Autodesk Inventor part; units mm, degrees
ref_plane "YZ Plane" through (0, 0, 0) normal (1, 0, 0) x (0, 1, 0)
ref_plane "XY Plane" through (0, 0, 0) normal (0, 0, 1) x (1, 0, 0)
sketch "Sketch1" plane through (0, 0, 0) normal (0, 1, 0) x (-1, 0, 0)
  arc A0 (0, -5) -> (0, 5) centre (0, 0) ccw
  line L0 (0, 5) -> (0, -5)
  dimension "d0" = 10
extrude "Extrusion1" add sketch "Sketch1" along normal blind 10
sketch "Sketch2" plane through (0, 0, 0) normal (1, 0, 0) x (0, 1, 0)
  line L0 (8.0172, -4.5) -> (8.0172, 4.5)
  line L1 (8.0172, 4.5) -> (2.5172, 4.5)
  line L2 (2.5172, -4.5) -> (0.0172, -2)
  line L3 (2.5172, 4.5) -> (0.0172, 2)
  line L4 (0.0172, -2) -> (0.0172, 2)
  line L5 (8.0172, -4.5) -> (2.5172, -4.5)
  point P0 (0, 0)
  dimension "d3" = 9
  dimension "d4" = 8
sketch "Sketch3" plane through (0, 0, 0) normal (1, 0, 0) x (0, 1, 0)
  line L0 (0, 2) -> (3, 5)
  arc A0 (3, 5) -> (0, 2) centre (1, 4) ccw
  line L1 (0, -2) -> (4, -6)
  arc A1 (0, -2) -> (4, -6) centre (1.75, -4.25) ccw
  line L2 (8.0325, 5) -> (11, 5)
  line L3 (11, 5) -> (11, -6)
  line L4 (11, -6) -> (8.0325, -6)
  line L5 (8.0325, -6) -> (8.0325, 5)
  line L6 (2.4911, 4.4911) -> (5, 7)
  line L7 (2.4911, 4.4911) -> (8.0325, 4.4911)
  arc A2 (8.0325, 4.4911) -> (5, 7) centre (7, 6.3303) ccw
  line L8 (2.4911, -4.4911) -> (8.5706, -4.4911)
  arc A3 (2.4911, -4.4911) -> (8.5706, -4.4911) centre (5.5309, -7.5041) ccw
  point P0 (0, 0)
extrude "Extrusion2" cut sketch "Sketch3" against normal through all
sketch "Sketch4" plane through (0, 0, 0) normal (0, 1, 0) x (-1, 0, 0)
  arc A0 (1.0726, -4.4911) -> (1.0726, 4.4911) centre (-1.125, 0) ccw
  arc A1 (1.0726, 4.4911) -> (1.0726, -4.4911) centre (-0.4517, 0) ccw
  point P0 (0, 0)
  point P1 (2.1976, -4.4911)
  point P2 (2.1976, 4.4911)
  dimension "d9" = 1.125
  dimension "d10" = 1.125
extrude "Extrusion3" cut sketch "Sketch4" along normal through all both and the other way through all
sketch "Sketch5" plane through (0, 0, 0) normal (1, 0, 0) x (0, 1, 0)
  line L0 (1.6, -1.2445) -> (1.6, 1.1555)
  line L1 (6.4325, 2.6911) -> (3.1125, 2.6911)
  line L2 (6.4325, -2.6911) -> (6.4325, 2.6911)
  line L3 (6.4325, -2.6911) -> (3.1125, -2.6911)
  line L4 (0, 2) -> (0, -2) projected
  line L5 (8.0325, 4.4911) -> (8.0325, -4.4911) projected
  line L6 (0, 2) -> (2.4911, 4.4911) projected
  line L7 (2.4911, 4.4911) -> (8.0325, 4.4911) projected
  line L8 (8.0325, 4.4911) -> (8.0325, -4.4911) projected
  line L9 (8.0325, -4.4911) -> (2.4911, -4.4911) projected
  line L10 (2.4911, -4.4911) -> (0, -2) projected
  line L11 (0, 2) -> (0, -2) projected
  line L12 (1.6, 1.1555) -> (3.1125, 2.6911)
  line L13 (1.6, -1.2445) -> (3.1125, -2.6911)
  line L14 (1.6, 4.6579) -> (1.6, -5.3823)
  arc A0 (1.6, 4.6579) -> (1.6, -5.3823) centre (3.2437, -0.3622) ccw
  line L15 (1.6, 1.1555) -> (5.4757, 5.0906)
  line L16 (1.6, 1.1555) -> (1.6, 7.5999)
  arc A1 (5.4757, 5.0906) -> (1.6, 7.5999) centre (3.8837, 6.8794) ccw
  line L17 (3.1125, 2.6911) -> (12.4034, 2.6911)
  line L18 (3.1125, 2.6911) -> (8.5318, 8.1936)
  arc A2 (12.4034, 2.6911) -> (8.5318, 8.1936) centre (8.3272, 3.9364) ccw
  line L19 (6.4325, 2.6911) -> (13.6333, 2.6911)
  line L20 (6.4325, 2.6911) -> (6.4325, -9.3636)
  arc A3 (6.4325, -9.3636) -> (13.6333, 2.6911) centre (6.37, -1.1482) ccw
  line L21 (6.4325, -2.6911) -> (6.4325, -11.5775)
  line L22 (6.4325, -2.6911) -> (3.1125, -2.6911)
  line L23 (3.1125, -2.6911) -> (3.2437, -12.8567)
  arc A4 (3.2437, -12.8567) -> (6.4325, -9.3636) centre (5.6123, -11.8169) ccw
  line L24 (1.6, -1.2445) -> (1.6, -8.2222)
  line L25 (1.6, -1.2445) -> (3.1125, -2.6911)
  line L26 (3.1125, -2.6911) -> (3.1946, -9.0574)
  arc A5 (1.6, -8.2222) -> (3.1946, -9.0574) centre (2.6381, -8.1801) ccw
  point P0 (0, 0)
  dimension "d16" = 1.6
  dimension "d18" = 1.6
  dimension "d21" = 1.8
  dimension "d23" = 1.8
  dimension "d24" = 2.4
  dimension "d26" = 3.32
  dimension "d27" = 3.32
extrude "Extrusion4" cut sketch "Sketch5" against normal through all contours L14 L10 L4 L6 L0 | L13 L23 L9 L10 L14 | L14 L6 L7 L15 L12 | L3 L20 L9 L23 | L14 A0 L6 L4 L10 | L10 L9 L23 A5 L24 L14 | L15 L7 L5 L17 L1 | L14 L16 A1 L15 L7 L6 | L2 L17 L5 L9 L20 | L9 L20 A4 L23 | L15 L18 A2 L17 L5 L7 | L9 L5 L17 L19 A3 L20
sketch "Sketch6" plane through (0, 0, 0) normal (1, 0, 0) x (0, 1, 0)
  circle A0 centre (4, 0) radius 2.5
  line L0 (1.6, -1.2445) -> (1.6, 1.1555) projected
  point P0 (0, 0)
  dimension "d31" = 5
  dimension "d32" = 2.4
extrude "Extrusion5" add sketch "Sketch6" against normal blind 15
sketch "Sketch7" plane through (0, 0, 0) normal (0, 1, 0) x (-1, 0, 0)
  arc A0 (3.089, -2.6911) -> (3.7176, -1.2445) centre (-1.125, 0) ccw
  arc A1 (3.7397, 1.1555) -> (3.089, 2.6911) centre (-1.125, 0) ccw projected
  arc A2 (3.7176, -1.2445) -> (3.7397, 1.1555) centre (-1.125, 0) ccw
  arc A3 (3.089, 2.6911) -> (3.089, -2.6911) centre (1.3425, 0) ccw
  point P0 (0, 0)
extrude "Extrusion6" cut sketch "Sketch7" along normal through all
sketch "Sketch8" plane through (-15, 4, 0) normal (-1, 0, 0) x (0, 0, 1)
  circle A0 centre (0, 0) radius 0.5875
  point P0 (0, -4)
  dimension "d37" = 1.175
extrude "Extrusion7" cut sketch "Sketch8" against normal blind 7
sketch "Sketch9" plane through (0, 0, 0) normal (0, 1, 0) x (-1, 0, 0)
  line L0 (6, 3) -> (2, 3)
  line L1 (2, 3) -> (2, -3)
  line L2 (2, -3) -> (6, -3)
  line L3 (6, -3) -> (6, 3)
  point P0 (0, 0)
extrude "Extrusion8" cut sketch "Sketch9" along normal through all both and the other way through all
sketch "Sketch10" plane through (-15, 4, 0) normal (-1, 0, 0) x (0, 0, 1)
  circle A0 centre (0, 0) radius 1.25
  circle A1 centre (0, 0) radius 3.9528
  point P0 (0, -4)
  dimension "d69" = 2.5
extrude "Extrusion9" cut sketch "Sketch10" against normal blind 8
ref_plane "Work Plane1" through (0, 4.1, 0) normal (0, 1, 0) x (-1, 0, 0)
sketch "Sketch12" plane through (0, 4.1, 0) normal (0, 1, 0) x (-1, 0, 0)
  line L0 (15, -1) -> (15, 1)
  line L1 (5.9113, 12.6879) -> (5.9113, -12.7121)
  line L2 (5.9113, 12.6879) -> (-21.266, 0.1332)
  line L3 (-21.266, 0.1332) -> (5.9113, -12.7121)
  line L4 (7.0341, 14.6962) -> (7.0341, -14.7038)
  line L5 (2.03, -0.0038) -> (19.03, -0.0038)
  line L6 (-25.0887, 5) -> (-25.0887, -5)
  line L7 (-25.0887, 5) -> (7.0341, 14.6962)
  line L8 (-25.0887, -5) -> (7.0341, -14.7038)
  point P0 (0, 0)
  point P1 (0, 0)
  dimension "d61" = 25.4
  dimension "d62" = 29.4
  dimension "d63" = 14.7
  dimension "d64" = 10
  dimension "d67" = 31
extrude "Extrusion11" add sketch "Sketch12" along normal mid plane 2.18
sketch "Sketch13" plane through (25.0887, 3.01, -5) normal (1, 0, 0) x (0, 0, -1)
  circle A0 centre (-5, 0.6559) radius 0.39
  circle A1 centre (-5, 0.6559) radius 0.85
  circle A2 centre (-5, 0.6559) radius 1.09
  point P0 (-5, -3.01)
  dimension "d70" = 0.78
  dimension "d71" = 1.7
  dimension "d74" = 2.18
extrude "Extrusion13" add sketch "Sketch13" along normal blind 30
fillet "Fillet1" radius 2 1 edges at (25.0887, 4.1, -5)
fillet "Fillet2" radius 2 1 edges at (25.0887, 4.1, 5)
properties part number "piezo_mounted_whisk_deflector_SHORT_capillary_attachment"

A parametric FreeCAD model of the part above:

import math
import FreeCAD as App
import Part
import Sketcher
from FreeCAD import Vector
Q = App.Units.Quantity


def edges_at(feature, points):
    """Names of the edges that pass closest to the given points."""
    edges = feature.Shape.Edges
    near = lambda p: min(range(len(edges)), key=lambda i: edges[i].distToShape(Part.Vertex(*p))[0])
    return sorted({f"Edge{near(p) + 1}" for p in points})


def add_polygon(sketch, points):
    """Adds a closed chain of lines whose ends are joined by coincident constraints."""
    first, n = sketch.GeometryCount, len(points)
    for a, b in zip(points, points[1:] + points[:1]):
        sketch.addGeometry(Part.LineSegment(App.Vector(*a, 0), App.Vector(*b, 0)), False)
    for i in range(n):
        sketch.addConstraint(Sketcher.Constraint("Coincident", first + i, 2, first + (i + 1) % n, 1))

doc = App.newDocument("Part")
body = doc.addObject("PartDesign::Body", "Body")

# Sketch on XZ plane
sketch1 = body.newObject("Sketcher::SketchObject", "Sketch")
sketch1.AttachmentSupport = (doc.getObject("XZ_Plane"), [""])
sketch1.MapMode = "FlatFace"
sketch1.addGeometry(Part.LineSegment(Vector(0, 5, 0), Vector(0, -5, 0)), False)
sketch1.addGeometry(Part.ArcOfCircle(Part.Circle(Vector(0, 0, 0), Vector(0, 0, 1), 5), math.radians(90), math.radians(270)), False)
sketch1.addConstraint(Sketcher.Constraint("Coincident", 0, 1, 1, 1))
sketch1.addConstraint(Sketcher.Constraint("Coincident", 1, 2, 0, 2))
sketch1.addConstraint(Sketcher.Constraint("Vertical", 0))
sketch1.addConstraint(Sketcher.Constraint("Coincident", 1, 3, -1, 1))
sketch1.addConstraint(Sketcher.Constraint("PointOnObject", 0, 1, -2))
sketch1.addConstraint(Sketcher.Constraint("Radius", 1, Q("5 mm")))
pad1 = body.newObject("PartDesign::Pad", "Pad")
pad1.Profile = sketch1
pad1.Length = 10
pad1.Reversed = True

# Sketch on YZ plane
sketch2 = body.newObject("Sketcher::SketchObject", "Sketch001")
sketch2.AttachmentSupport = (doc.getObject("YZ_Plane"), [""])
sketch2.MapMode = "FlatFace"
sketch2.addGeometry(Part.ArcOfCircle(Part.Circle(Vector(1, 4, 0), Vector(0, 0, 1), 2.236068), math.radians(26.565051), math.radians(243.434949)), False)
sketch2.addGeometry(Part.LineSegment(Vector(0, 2, 0), Vector(2.4911, 4.4911, 0)), False)
sketch2.addGeometry(Part.LineSegment(Vector(2.4911, 4.4911, 0), Vector(8.0325, 4.4911, 0)), False)
sketch2.addGeometry(Part.LineSegment(Vector(8.0325, 4.4911, 0), Vector(8.0325, -4.4911, 0)), False)
sketch2.addGeometry(Part.LineSegment(Vector(8.0325, -4.4911, 0), Vector(2.4911, -4.4911, 0)), False)
sketch2.addGeometry(Part.LineSegment(Vector(2.4911, -4.4911, 0), Vector(0, -2, 0)), False)
sketch2.addGeometry(Part.ArcOfCircle(Part.Circle(Vector(1.75, -4.25, 0), Vector(0, 0, 1), 2.850439), math.radians(127.874984), math.radians(260.385326)), False)
sketch2.addGeometry(Part.ArcOfCircle(Part.Circle(Vector(5.5309, -7.5041, 0), Vector(0, 0, 1), 4.280018), math.radians(174.04961), math.radians(380.5748)), False)
sketch2.addGeometry(Part.LineSegment(Vector(9.537843, -6, 0), Vector(11, -6, 0)), False)
sketch2.addGeometry(Part.LineSegment(Vector(11, -6, 0), Vector(11, 5, 0)), False)
sketch2.addGeometry(Part.LineSegment(Vector(11, 5, 0), Vector(8.636781, 5, 0)), False)
sketch2.addGeometry(Part.ArcOfCircle(Part.Circle(Vector(7, 6.3303, 0), Vector(0, 0, 1), 2.109197), math.radians(-39.10262), math.radians(161.486878)), False)
sketch2.addGeometry(Part.LineSegment(Vector(5, 7, 0), Vector(3, 5, 0)), False)
sketch2.addConstraint(Sketcher.Constraint("Coincident", 0, 2, 1, 1))
sketch2.addConstraint(Sketcher.Constraint("Coincident", 1, 2, 2, 1))
sketch2.addConstraint(Sketcher.Constraint("Coincident", 2, 2, 3, 1))
sketch2.addConstraint(Sketcher.Constraint("Coincident", 3, 2, 4, 1))
sketch2.addConstraint(Sketcher.Constraint("Coincident", 4, 2, 5, 1))
sketch2.addConstraint(Sketcher.Constraint("Coincident", 5, 2, 6, 1))
sketch2.addConstraint(Sketcher.Constraint("Coincident", 6, 2, 7, 1))
sketch2.addConstraint(Sketcher.Constraint("Coincident", 7, 2, 8, 1))
sketch2.addConstraint(Sketcher.Constraint("Coincident", 8, 2, 9, 1))
sketch2.addConstraint(Sketcher.Constraint("Coincident", 9, 2, 10, 1))
sketch2.addConstraint(Sketcher.Constraint("Coincident", 10, 2, 11, 1))
sketch2.addConstraint(Sketcher.Constraint("Coincident", 11, 2, 12, 1))
sketch2.addConstraint(Sketcher.Constraint("Coincident", 12, 2, 0, 1))
sketch2.addConstraint(Sketcher.Constraint("Horizontal", 2))
sketch2.addConstraint(Sketcher.Constraint("Vertical", 3))
sketch2.addConstraint(Sketcher.Constraint("Horizontal", 4))
sketch2.addConstraint(Sketcher.Constraint("Horizontal", 8))
sketch2.addConstraint(Sketcher.Constraint("Vertical", 9))
sketch2.addConstraint(Sketcher.Constraint("Horizontal", 10))
sketch2.addConstraint(Sketcher.Constraint("Symmetric", 0, 2, 5, 2, -1, 1))
sketch2.addConstraint(Sketcher.Constraint("Symmetric", 1, 2, 4, 2, -1))
sketch2.addConstraint(Sketcher.Constraint("PointOnObject", 0, 2, -2))
sketch2.addConstraint(Sketcher.Constraint("Perpendicular", 1, 5))
sketch2.addConstraint(Sketcher.Constraint("Perpendicular", 5, 12))
sketch2.addConstraint(Sketcher.Constraint("Horizontal", 10, 2, 12, 2))
sketch2.addConstraint(Sketcher.Constraint("DistanceY", 9, 1, 9, 2, Q("11 mm")))
sketch2.addConstraint(Sketcher.Constraint("Radius", 7, Q("4.28 mm")))
sketch2.addConstraint(Sketcher.Constraint("DistanceX", -1, 1, 0, 3, Q("1 mm")))
sketch2.addConstraint(Sketcher.Constraint("DistanceY", -1, 1, 0, 3, Q("4 mm")))
sketch2.addConstraint(Sketcher.Constraint("DistanceX", -1, 1, 11, 3, Q("7 mm")))
sketch2.addConstraint(Sketcher.Constraint("DistanceY", -1, 1, 0, 2, Q("2 mm")))
sketch2.addConstraint(Sketcher.Constraint("DistanceY", 7, 2, -1, 1, Q("6 mm")))
sketch2.addConstraint(Sketcher.Constraint("DistanceX", -1, 1, 8, 2, Q("11 mm")))
sketch2.addConstraint(Sketcher.Constraint("DistanceX", -1, 1, 11, 2, Q("5 mm")))
sketch2.addConstraint(Sketcher.Constraint("Radius", 6, Q("2.8504 mm")))
sketch2.addConstraint(Sketcher.Constraint("Radius", 11, Q("2.1092 mm")))
sketch2.addConstraint(Sketcher.Constraint("DistanceX", -1, 1, 6, 3, Q("1.75 mm")))
sketch2.addConstraint(Sketcher.Constraint("Distance", 1, Q("3.523 mm")))
sketch2.addConstraint(Sketcher.Constraint("DistanceX", 2, 1, 2, 2, Q("5.5414 mm")))
sketch2.addConstraint(Sketcher.Constraint("DistanceX", 8, 1, 8, 2, Q("1.4622 mm")))
sketch2.addConstraint(Sketcher.Constraint("DistanceX", -1, 1, 7, 3, Q("5.531 mm")))
pocket1 = body.newObject("PartDesign::Pocket", "Pocket")
pocket1.Profile = sketch2
pocket1.Type = "ThroughAll"

# Sketch on XZ plane
sketch3 = body.newObject("Sketcher::SketchObject", "Sketch002")
sketch3.AttachmentSupport = (doc.getObject("XZ_Plane"), [""])
sketch3.MapMode = "FlatFace"
sketch3.addGeometry(Part.ArcOfCircle(Part.Circle(Vector(0.4517, 0, 0), Vector(0, 0, 1), 4.742728), math.radians(-108.747449), math.radians(108.747449)), False)
sketch3.addGeometry(Part.ArcOfCircle(Part.Circle(Vector(1.125, 0, 0), Vector(0, 0, 1), 4.999942), math.radians(116.073582), math.radians(243.926418)), False)
sketch3.addConstraint(Sketcher.Constraint("Coincident", 0, 1, 1, 2))
sketch3.addConstraint(Sketcher.Constraint("Coincident", 1, 1, 0, 2))
sketch3.addConstraint(Sketcher.Constraint("Symmetric", 0, 1, 1, 1, -1))
sketch3.addConstraint(Sketcher.Constraint("Radius", 1, Q("5 mm")))
sketch3.addConstraint(Sketcher.Constraint("DistanceX", -1, 1, 1, 3, Q("1.125 mm")))
sketch3.addConstraint(Sketcher.Constraint("Radius", 0, Q("4.7427 mm")))
sketch3.addConstraint(Sketcher.Constraint("DistanceY", 0, 1, -1, 1, Q("4.491 mm")))
pocket2 = body.newObject("PartDesign::Pocket", "Pocket001")
pocket2.Profile = sketch3
pocket2.Type = "ThroughAll"

# Sketch on YZ plane
sketch4 = body.newObject("Sketcher::SketchObject", "Sketch003")
sketch4.AttachmentSupport = (doc.getObject("YZ_Plane"), [""])
sketch4.MapMode = "FlatFace"
sketch4.addGeometry(Part.ArcOfCircle(Part.Circle(Vector(3.2437, -0.3622, 0), Vector(0, 0, 1), 5.282344), math.radians(108.129676), math.radians(251.870324)), False)  # 0
sketch4.addGeometry(Part.LineSegment(Vector(1.6, -5.3823, 0), Vector(1.6, -8.2222, 0)), False)  # 1
sketch4.addGeometry(Part.ArcOfCircle(Part.Circle(Vector(2.6381, -8.1801, 0), Vector(0, 0, 1), 1.038953), math.radians(-177.67765), math.radians(-57.611711)), False)  # 2
sketch4.addGeometry(Part.LineSegment(Vector(3.194665, -9.057399, 0), Vector(3.2437, -12.8567, 0)), False)  # 3
sketch4.addGeometry(Part.ArcOfCircle(Part.Circle(Vector(5.6123, -11.8169, 0), Vector(0, 0, 1), 2.586784), math.radians(-156.298838), math.radians(71.51392)), False)  # 4
sketch4.addGeometry(Part.ArcOfCircle(Part.Circle(Vector(6.37, -1.1482, 0), Vector(0, 0, 1), 8.215638), math.radians(-89.564121), math.radians(27.860435)), False)  # 5
sketch4.addGeometry(Part.LineSegment(Vector(13.6333, 2.6911, 0), Vector(12.4034, 2.6911, 0)), False)  # 6
sketch4.addGeometry(Part.ArcOfCircle(Part.Circle(Vector(8.3272, 3.9364, 0), Vector(0, 0, 1), 4.26218), math.radians(-16.988181), math.radians(87.248496)), False)  # 7
sketch4.addGeometry(Part.LineSegment(Vector(8.5318, 8.1936, 0), Vector(5.475709, 5.090591, 0)), False)  # 8
sketch4.addGeometry(Part.ArcOfCircle(Part.Circle(Vector(3.8837, 6.8794, 0), Vector(0, 0, 1), 2.394633), math.radians(-48.331489), math.radians(162.489682)), False)  # 9
sketch4.addGeometry(Part.LineSegment(Vector(1.6, 7.5999, 0), Vector(1.6, 4.6579, 0)), False)  # 10
add_polygon(sketch4, [(1.6, -1.2445), (1.6, 1.1555), (3.1125, 2.6911), (6.4325, 2.6911), (6.4325, -2.6911), (3.1125, -2.6911)])  # lines 11-16
sketch4.addConstraint(Sketcher.Constraint("Coincident", 0, 2, 1, 1))
sketch4.addConstraint(Sketcher.Constraint("Coincident", 1, 2, 2, 1))
sketch4.addConstraint(Sketcher.Constraint("Coincident", 2, 2, 3, 1))
sketch4.addConstraint(Sketcher.Constraint("Coincident", 3, 2, 4, 1))
sketch4.addConstraint(Sketcher.Constraint("Coincident", 4, 2, 5, 1))
sketch4.addConstraint(Sketcher.Constraint("Coincident", 5, 2, 6, 1))
sketch4.addConstraint(Sketcher.Constraint("Coincident", 6, 2, 7, 1))
sketch4.addConstraint(Sketcher.Constraint("Coincident", 7, 2, 8, 1))
sketch4.addConstraint(Sketcher.Constraint("Coincident", 8, 2, 9, 1))
sketch4.addConstraint(Sketcher.Constraint("Coincident", 9, 2, 10, 1))
sketch4.addConstraint(Sketcher.Constraint("Coincident", 10, 2, 0, 1))
sketch4.addConstraint(Sketcher.Constraint("Vertical", 1))
sketch4.addConstraint(Sketcher.Constraint("Horizontal", 6))
sketch4.addConstraint(Sketcher.Constraint("Vertical", 10))
sketch4.addConstraint(Sketcher.Constraint("Vertical", 11))
sketch4.addConstraint(Sketcher.Constraint("Horizontal", 13))
sketch4.addConstraint(Sketcher.Constraint("Vertical", 14))
sketch4.addConstraint(Sketcher.Constraint("Horizontal", 15))
sketch4.addConstraint(Sketcher.Constraint("Symmetric", 12, 2, 15, 2, -1))
sketch4.addConstraint(Sketcher.Constraint("Parallel", 8, 12))
sketch4.addConstraint(Sketcher.Constraint("Horizontal", 6, 2, 12, 2))
sketch4.addConstraint(Sketcher.Constraint("Vertical", 0, 3, 3, 2))
sketch4.addConstraint(Sketcher.Constraint("Vertical", 1, 2, 9, 2))
sketch4.addConstraint(Sketcher.Constraint("Vertical", 10, 2, 11, 2))
sketch4.addConstraint(Sketcher.Constraint("Vertical", 4, 2, 13, 2))
sketch4.addConstraint(Sketcher.Constraint("DistanceY", 11, 1, 11, 2, Q("2.4 mm")))
sketch4.addConstraint(Sketcher.Constraint("DistanceX", 13, 1, 13, 2, Q("3.32 mm")))
sketch4.addConstraint(Sketcher.Constraint("DistanceX", -1, 1, 0, 2, Q("1.6 mm")))
sketch4.addConstraint(Sketcher.Constraint("Radius", 2, Q("1.039 mm")))
sketch4.addConstraint(Sketcher.Constraint("DistanceX", 6, 2, 6, 1, Q("1.23 mm")))
sketch4.addConstraint(Sketcher.Constraint("DistanceY", 1, 2, 1, 1, Q("2.84 mm")))
sketch4.addConstraint(Sketcher.Constraint("DistanceY", -1, 1, 9, 2, Q("7.6 mm")))
sketch4.addConstraint(Sketcher.Constraint("Angle", 3, Q("-89.2606 deg")))
sketch4.addConstraint(Sketcher.Constraint("Radius", 0, Q("5.2823 mm")))
sketch4.addConstraint(Sketcher.Constraint("Radius", 4, Q("2.5868 mm")))
sketch4.addConstraint(Sketcher.Constraint("Radius", 5, Q("8.2156 mm")))
sketch4.addConstraint(Sketcher.Constraint("Radius", 7, Q("4.2622 mm")))
sketch4.addConstraint(Sketcher.Constraint("Radius", 9, Q("2.3946 mm")))
sketch4.addConstraint(Sketcher.Constraint("DistanceY", 12, 2, 8, 2, Q("2.3995 mm")))
sketch4.addConstraint(Sketcher.Constraint("DistanceY", 10, 2, 10, 1, Q("2.942 mm")))
sketch4.addConstraint(Sketcher.Constraint("DistanceY", 2, 3, -1, 1, Q("8.18 mm")))
sketch4.addConstraint(Sketcher.Constraint("DistanceX", -1, 1, 5, 3, Q("6.37 mm")))
sketch4.addConstraint(Sketcher.Constraint("DistanceX", 0, 3, 9, 3, Q("0.64 mm")))
sketch4.addConstraint(Sketcher.Constraint("DistanceY", 0, 2, 0, 3, Q("5.02 mm")))
sketch4.addConstraint(Sketcher.Constraint("Distance", 16, Q("2.093 mm")))
sketch4.addConstraint(Sketcher.Constraint("DistanceY", 14, 2, 14, 1, Q("5.3822 mm")))
sketch4.addConstraint(Sketcher.Constraint("DistanceY", 4, 3, -1, 1, Q("11.817 mm")))
sketch4.addConstraint(Sketcher.Constraint("DistanceY", 5, 3, 0, 3, Q("0.786 mm")))
sketch4.addConstraint(Sketcher.Constraint("DistanceX", 2, 3, 7, 3, Q("5.689 mm")))
sketch4.addConstraint(Sketcher.Constraint("DistanceX", 4, 3, 7, 3, Q("2.715 mm")))
pocket3 = body.newObject("PartDesign::Pocket", "Pocket002")
pocket3.Profile = sketch4
pocket3.Type = "ThroughAll"

# Sketch on YZ plane
sketch5 = body.newObject("Sketcher::SketchObject", "Sketch004")
sketch5.AttachmentSupport = (doc.getObject("YZ_Plane"), [""])
sketch5.MapMode = "FlatFace"
sketch5.addGeometry(Part.Circle(Vector(4, 0, 0), Vector(0, 0, 1), 2.5), False)
sketch5.addConstraint(Sketcher.Constraint("PointOnObject", 0, 3, -1))
sketch5.addConstraint(Sketcher.Constraint("Diameter", 0, Q("5 mm")))
sketch5.addConstraint(Sketcher.Constraint("DistanceX", -1, 1, 0, 3, Q("4 mm")))
pad2 = body.newObject("PartDesign::Pad", "Pad001")
pad2.Profile = sketch5
pad2.Length = 15
pad2.Reversed = True

# Sketch on XZ plane
sketch6 = body.newObject("Sketcher::SketchObject", "Sketch005")
sketch6.AttachmentSupport = (doc.getObject("XZ_Plane"), [""])
sketch6.MapMode = "FlatFace"
sketch6.addGeometry(Part.ArcOfCircle(Part.Circle(Vector(-1.3425, 0, 0), Vector(0, 0, 1), 3.208159), math.radians(-122.983213), math.radians(122.983213)), False)
sketch6.addGeometry(Part.ArcOfCircle(Part.Circle(Vector(1.12408, -0.00049, 0), Vector(0, 0, 1), 4.998942), math.radians(-165.590252), math.radians(-147.436371)), False)
sketch6.addGeometry(Part.ArcOfCircle(Part.Circle(Vector(1.126592, 0.000209, 0), Vector(0, 0, 1), 5.001549), math.radians(166.64483), math.radians(194.410337)), False)
sketch6.addGeometry(Part.ArcOfCircle(Part.Circle(Vector(1.122716, 0.000749, 0), Vector(0, 0, 1), 4.997654), math.radians(147.430464), math.radians(166.640596)), False)
sketch6.addConstraint(Sketcher.Constraint("Coincident", 0, 1, 1, 2))
sketch6.addConstraint(Sketcher.Constraint("Tangent", 1, 1, 2, 2))
sketch6.addConstraint(Sketcher.Constraint("Tangent", 2, 1, 3, 2))
sketch6.addConstraint(Sketcher.Constraint("Coincident", 3, 1, 0, 2))
sketch6.addConstraint(Sketcher.Constraint("Symmetric", 0, 1, 3, 1, -1))
sketch6.addConstraint(Sketcher.Constraint("Radius", 1, Q("4.999 mm")))
sketch6.addConstraint(Sketcher.Constraint("Radius", 0, Q("3.2082 mm")))
sketch6.addConstraint(Sketcher.Constraint("Radius", 2, Q("5.0015 mm")))
sketch6.addConstraint(Sketcher.Constraint("Radius", 3, Q("4.9977 mm")))
sketch6.addConstraint(Sketcher.Constraint("DistanceY", 1, 1, 2, 1, Q("2.4 mm")))
sketch6.addConstraint(Sketcher.Constraint("DistanceX", -1, 1, 1, 3, Q("1.124 mm")))
sketch6.addConstraint(Sketcher.Constraint("DistanceX", 0, 1, -1, 1, Q("3.089 mm")))
sketch6.addConstraint(Sketcher.Constraint("DistanceX", 1, 1, 0, 3, Q("2.375 mm")))
pocket4 = body.newObject("PartDesign::Pocket", "Pocket003")
pocket4.Profile = sketch6
pocket4.Type = "ThroughAll"

# Sketch on YZ plane
sketch7 = body.newObject("Sketcher::SketchObject", "Sketch006")
sketch7.AttachmentSupport = (doc.getObject("YZ_Plane"), [""])
sketch7.MapMode = "FlatFace"
sketch7.AttachmentOffset = App.Placement(Vector(0, 0, -15), App.Rotation())
sketch7.addGeometry(Part.Circle(Vector(4, 0, 0), Vector(0, 0, 1), 0.5875), False)
sketch7.addConstraint(Sketcher.Constraint("PointOnObject", 0, 3, -1))
sketch7.addConstraint(Sketcher.Constraint("Diameter", 0, Q("1.175 mm")))
sketch7.addConstraint(Sketcher.Constraint("DistanceX", -1, 1, 0, 3, Q("4 mm")))
pocket5 = body.newObject("PartDesign::Pocket", "Pocket004")
pocket5.Profile = sketch7
pocket5.Length = 7
pocket5.Reversed = True

# Sketch on XZ plane
sketch8 = body.newObject("Sketcher::SketchObject", "Sketch007")
sketch8.AttachmentSupport = (doc.getObject("XZ_Plane"), [""])
sketch8.MapMode = "FlatFace"
add_polygon(sketch8, [(-6, -3), (-6, 3), (-2, 3), (-2, -3)])  # lines 0-3
sketch8.addConstraint(Sketcher.Constraint("Vertical", 0))
sketch8.addConstraint(Sketcher.Constraint("Horizontal", 1))
sketch8.addConstraint(Sketcher.Constraint("Vertical", 2))
sketch8.addConstraint(Sketcher.Constraint("Horizontal", 3))
sketch8.addConstraint(Sketcher.Constraint("DistanceX", 1, 1, 1, 2, Q("4 mm")))
sketch8.addConstraint(Sketcher.Constraint("DistanceY", 0, 1, 0, 2, Q("6 mm")))
sketch8.addConstraint(Sketcher.Constraint("DistanceX", 0, 2, -1, 1, Q("6 mm")))
sketch8.addConstraint(Sketcher.Constraint("DistanceY", -1, 1, 0, 2, Q("3 mm")))
pocket6 = body.newObject("PartDesign::Pocket", "Pocket005")
pocket6.Profile = sketch8
pocket6.Type = "ThroughAll"

# Sketch on YZ plane
sketch9 = body.newObject("Sketcher::SketchObject", "Sketch008")
sketch9.AttachmentSupport = (doc.getObject("YZ_Plane"), [""])
sketch9.MapMode = "FlatFace"
sketch9.AttachmentOffset = App.Placement(Vector(0, 0, -15), App.Rotation())
sketch9.addGeometry(Part.Circle(Vector(4, 0, 0), Vector(0, 0, 1), 3.9528), False)
sketch9.addGeometry(Part.Circle(Vector(4, 0, 0), Vector(0, 0, 1), 1.25), False)
sketch9.addConstraint(Sketcher.Constraint("Coincident", 1, 3, 0, 3))
sketch9.addConstraint(Sketcher.Constraint("PointOnObject", 0, 3, -1))
sketch9.addConstraint(Sketcher.Constraint("Diameter", 1, Q("2.5 mm")))
sketch9.addConstraint(Sketcher.Constraint("DistanceX", -1, 1, 0, 3, Q("4 mm")))
sketch9.addConstraint(Sketcher.Constraint("Diameter", 0, Q("7.9056 mm")))
pocket7 = body.newObject("PartDesign::Pocket", "Pocket006")
pocket7.Profile = sketch9
pocket7.Length = 8
pocket7.Reversed = True

# Sketch on XZ plane
sketch10 = body.newObject("Sketcher::SketchObject", "Sketch009")
sketch10.AttachmentSupport = (doc.getObject("XZ_Plane"), [""])
sketch10.MapMode = "FlatFace"
sketch10.AttachmentOffset = App.Placement(Vector(0, 0, -4.1), App.Rotation())
add_polygon(sketch10, [(-7.0341, -14.7038), (-7.0341, -0.0038), (-7.0341, 14.6962), (25.0887, 5), (25.0887, -5)])  # lines 0-4
add_polygon(sketch10, [(21.266, 0.1332), (-5.9113, 12.6879), (-5.9113, -0.0038), (-5.9113, -12.7121)])  # lines 5-8
sketch10.addConstraint(Sketcher.Constraint("Vertical", 0))
sketch10.addConstraint(Sketcher.Constraint("Vertical", 1))
sketch10.addConstraint(Sketcher.Constraint("Vertical", 3))
sketch10.addConstraint(Sketcher.Constraint("Vertical", 6))
sketch10.addConstraint(Sketcher.Constraint("Vertical", 7))
sketch10.addConstraint(Sketcher.Constraint("Horizontal", 0, 2, 6, 2))
sketch10.addConstraint(Sketcher.Constraint("Equal", 0, 1))
sketch10.addConstraint(Sketcher.Constraint("DistanceY", 3, 2, 3, 1, Q("10 mm")))
sketch10.addConstraint(Sketcher.Constraint("DistanceY", 0, 1, 0, 2, Q("14.7 mm")))
sketch10.addConstraint(Sketcher.Constraint("DistanceX", 5, 2, 2, 2, Q("31 mm")))
sketch10.addConstraint(Sketcher.Constraint("DistanceY", 7, 2, 5, 2, Q("25.4 mm")))
sketch10.addConstraint(Sketcher.Constraint("DistanceY", -1, 1, 2, 2, Q("5 mm")))
sketch10.addConstraint(Sketcher.Constraint("DistanceX", 0, 2, 8, 2, Q("28.3 mm")))
sketch10.addConstraint(Sketcher.Constraint("Distance", 8, Q("30.06 mm")))
sketch10.addConstraint(Sketcher.Constraint("Distance", 5, Q("29.937 mm")))
sketch10.addConstraint(Sketcher.Constraint("DistanceY", 6, 2, 6, 1, Q("12.6917 mm")))
sketch10.addConstraint(Sketcher.Constraint("DistanceX", 0, 2, -1, 1, Q("7.034 mm")))
sketch10.addConstraint(Sketcher.Constraint("DistanceY", -1, 1, 5, 2, Q("12.688 mm")))
pad3 = body.newObject("PartDesign::Pad", "Pad002")
pad3.Profile = sketch10
pad3.Length = 2.18
pad3.Midplane = True

# Sketch on YZ plane
sketch11 = body.newObject("Sketcher::SketchObject", "Sketch010")
sketch11.AttachmentSupport = (doc.getObject("YZ_Plane"), [""])
sketch11.MapMode = "FlatFace"
sketch11.AttachmentOffset = App.Placement(Vector(0, 0, 25.0887), App.Rotation())
sketch11.addGeometry(Part.Circle(Vector(3.6659, 0, 0), Vector(0, 0, 1), 0.39), False)
sketch11.addGeometry(Part.Circle(Vector(3.6659, 0, 0), Vector(0, 0, 1), 1.09), False)
sketch11.addGeometry(Part.Circle(Vector(3.6659, 0, 0), Vector(0, 0, 1), 0.85), False)
sketch11.addConstraint(Sketcher.Constraint("Coincident", 1, 3, 0, 3))
sketch11.addConstraint(Sketcher.Constraint("Coincident", 2, 3, 0, 3))
sketch11.addConstraint(Sketcher.Constraint("PointOnObject", 0, 3, -1))
sketch11.addConstraint(Sketcher.Constraint("Diameter", 2, Q("1.7 mm")))
sketch11.addConstraint(Sketcher.Constraint("Diameter", 0, Q("0.78 mm")))
sketch11.addConstraint(Sketcher.Constraint("Diameter", 1, Q("2.18 mm")))
sketch11.addConstraint(Sketcher.Constraint("DistanceX", -1, 1, 0, 3, Q("3.666 mm")))
pad4 = body.newObject("PartDesign::Pad", "Pad003")
pad4.Profile = sketch11
pad4.Length = 30
doc.recompute()

fillet = body.newObject("PartDesign::Fillet", "Fillet")
fillet.Base = (pad4, edges_at(pad4, [(25.089, 4.1, -5)]))
fillet.Radius = 2
doc.recompute()

fillet2 = body.newObject("PartDesign::Fillet", "Fillet001")
fillet2.Base = (fillet, edges_at(fillet, [(25.089, 4.1, 5)]))
fillet2.Radius = 2

doc.recompute()
